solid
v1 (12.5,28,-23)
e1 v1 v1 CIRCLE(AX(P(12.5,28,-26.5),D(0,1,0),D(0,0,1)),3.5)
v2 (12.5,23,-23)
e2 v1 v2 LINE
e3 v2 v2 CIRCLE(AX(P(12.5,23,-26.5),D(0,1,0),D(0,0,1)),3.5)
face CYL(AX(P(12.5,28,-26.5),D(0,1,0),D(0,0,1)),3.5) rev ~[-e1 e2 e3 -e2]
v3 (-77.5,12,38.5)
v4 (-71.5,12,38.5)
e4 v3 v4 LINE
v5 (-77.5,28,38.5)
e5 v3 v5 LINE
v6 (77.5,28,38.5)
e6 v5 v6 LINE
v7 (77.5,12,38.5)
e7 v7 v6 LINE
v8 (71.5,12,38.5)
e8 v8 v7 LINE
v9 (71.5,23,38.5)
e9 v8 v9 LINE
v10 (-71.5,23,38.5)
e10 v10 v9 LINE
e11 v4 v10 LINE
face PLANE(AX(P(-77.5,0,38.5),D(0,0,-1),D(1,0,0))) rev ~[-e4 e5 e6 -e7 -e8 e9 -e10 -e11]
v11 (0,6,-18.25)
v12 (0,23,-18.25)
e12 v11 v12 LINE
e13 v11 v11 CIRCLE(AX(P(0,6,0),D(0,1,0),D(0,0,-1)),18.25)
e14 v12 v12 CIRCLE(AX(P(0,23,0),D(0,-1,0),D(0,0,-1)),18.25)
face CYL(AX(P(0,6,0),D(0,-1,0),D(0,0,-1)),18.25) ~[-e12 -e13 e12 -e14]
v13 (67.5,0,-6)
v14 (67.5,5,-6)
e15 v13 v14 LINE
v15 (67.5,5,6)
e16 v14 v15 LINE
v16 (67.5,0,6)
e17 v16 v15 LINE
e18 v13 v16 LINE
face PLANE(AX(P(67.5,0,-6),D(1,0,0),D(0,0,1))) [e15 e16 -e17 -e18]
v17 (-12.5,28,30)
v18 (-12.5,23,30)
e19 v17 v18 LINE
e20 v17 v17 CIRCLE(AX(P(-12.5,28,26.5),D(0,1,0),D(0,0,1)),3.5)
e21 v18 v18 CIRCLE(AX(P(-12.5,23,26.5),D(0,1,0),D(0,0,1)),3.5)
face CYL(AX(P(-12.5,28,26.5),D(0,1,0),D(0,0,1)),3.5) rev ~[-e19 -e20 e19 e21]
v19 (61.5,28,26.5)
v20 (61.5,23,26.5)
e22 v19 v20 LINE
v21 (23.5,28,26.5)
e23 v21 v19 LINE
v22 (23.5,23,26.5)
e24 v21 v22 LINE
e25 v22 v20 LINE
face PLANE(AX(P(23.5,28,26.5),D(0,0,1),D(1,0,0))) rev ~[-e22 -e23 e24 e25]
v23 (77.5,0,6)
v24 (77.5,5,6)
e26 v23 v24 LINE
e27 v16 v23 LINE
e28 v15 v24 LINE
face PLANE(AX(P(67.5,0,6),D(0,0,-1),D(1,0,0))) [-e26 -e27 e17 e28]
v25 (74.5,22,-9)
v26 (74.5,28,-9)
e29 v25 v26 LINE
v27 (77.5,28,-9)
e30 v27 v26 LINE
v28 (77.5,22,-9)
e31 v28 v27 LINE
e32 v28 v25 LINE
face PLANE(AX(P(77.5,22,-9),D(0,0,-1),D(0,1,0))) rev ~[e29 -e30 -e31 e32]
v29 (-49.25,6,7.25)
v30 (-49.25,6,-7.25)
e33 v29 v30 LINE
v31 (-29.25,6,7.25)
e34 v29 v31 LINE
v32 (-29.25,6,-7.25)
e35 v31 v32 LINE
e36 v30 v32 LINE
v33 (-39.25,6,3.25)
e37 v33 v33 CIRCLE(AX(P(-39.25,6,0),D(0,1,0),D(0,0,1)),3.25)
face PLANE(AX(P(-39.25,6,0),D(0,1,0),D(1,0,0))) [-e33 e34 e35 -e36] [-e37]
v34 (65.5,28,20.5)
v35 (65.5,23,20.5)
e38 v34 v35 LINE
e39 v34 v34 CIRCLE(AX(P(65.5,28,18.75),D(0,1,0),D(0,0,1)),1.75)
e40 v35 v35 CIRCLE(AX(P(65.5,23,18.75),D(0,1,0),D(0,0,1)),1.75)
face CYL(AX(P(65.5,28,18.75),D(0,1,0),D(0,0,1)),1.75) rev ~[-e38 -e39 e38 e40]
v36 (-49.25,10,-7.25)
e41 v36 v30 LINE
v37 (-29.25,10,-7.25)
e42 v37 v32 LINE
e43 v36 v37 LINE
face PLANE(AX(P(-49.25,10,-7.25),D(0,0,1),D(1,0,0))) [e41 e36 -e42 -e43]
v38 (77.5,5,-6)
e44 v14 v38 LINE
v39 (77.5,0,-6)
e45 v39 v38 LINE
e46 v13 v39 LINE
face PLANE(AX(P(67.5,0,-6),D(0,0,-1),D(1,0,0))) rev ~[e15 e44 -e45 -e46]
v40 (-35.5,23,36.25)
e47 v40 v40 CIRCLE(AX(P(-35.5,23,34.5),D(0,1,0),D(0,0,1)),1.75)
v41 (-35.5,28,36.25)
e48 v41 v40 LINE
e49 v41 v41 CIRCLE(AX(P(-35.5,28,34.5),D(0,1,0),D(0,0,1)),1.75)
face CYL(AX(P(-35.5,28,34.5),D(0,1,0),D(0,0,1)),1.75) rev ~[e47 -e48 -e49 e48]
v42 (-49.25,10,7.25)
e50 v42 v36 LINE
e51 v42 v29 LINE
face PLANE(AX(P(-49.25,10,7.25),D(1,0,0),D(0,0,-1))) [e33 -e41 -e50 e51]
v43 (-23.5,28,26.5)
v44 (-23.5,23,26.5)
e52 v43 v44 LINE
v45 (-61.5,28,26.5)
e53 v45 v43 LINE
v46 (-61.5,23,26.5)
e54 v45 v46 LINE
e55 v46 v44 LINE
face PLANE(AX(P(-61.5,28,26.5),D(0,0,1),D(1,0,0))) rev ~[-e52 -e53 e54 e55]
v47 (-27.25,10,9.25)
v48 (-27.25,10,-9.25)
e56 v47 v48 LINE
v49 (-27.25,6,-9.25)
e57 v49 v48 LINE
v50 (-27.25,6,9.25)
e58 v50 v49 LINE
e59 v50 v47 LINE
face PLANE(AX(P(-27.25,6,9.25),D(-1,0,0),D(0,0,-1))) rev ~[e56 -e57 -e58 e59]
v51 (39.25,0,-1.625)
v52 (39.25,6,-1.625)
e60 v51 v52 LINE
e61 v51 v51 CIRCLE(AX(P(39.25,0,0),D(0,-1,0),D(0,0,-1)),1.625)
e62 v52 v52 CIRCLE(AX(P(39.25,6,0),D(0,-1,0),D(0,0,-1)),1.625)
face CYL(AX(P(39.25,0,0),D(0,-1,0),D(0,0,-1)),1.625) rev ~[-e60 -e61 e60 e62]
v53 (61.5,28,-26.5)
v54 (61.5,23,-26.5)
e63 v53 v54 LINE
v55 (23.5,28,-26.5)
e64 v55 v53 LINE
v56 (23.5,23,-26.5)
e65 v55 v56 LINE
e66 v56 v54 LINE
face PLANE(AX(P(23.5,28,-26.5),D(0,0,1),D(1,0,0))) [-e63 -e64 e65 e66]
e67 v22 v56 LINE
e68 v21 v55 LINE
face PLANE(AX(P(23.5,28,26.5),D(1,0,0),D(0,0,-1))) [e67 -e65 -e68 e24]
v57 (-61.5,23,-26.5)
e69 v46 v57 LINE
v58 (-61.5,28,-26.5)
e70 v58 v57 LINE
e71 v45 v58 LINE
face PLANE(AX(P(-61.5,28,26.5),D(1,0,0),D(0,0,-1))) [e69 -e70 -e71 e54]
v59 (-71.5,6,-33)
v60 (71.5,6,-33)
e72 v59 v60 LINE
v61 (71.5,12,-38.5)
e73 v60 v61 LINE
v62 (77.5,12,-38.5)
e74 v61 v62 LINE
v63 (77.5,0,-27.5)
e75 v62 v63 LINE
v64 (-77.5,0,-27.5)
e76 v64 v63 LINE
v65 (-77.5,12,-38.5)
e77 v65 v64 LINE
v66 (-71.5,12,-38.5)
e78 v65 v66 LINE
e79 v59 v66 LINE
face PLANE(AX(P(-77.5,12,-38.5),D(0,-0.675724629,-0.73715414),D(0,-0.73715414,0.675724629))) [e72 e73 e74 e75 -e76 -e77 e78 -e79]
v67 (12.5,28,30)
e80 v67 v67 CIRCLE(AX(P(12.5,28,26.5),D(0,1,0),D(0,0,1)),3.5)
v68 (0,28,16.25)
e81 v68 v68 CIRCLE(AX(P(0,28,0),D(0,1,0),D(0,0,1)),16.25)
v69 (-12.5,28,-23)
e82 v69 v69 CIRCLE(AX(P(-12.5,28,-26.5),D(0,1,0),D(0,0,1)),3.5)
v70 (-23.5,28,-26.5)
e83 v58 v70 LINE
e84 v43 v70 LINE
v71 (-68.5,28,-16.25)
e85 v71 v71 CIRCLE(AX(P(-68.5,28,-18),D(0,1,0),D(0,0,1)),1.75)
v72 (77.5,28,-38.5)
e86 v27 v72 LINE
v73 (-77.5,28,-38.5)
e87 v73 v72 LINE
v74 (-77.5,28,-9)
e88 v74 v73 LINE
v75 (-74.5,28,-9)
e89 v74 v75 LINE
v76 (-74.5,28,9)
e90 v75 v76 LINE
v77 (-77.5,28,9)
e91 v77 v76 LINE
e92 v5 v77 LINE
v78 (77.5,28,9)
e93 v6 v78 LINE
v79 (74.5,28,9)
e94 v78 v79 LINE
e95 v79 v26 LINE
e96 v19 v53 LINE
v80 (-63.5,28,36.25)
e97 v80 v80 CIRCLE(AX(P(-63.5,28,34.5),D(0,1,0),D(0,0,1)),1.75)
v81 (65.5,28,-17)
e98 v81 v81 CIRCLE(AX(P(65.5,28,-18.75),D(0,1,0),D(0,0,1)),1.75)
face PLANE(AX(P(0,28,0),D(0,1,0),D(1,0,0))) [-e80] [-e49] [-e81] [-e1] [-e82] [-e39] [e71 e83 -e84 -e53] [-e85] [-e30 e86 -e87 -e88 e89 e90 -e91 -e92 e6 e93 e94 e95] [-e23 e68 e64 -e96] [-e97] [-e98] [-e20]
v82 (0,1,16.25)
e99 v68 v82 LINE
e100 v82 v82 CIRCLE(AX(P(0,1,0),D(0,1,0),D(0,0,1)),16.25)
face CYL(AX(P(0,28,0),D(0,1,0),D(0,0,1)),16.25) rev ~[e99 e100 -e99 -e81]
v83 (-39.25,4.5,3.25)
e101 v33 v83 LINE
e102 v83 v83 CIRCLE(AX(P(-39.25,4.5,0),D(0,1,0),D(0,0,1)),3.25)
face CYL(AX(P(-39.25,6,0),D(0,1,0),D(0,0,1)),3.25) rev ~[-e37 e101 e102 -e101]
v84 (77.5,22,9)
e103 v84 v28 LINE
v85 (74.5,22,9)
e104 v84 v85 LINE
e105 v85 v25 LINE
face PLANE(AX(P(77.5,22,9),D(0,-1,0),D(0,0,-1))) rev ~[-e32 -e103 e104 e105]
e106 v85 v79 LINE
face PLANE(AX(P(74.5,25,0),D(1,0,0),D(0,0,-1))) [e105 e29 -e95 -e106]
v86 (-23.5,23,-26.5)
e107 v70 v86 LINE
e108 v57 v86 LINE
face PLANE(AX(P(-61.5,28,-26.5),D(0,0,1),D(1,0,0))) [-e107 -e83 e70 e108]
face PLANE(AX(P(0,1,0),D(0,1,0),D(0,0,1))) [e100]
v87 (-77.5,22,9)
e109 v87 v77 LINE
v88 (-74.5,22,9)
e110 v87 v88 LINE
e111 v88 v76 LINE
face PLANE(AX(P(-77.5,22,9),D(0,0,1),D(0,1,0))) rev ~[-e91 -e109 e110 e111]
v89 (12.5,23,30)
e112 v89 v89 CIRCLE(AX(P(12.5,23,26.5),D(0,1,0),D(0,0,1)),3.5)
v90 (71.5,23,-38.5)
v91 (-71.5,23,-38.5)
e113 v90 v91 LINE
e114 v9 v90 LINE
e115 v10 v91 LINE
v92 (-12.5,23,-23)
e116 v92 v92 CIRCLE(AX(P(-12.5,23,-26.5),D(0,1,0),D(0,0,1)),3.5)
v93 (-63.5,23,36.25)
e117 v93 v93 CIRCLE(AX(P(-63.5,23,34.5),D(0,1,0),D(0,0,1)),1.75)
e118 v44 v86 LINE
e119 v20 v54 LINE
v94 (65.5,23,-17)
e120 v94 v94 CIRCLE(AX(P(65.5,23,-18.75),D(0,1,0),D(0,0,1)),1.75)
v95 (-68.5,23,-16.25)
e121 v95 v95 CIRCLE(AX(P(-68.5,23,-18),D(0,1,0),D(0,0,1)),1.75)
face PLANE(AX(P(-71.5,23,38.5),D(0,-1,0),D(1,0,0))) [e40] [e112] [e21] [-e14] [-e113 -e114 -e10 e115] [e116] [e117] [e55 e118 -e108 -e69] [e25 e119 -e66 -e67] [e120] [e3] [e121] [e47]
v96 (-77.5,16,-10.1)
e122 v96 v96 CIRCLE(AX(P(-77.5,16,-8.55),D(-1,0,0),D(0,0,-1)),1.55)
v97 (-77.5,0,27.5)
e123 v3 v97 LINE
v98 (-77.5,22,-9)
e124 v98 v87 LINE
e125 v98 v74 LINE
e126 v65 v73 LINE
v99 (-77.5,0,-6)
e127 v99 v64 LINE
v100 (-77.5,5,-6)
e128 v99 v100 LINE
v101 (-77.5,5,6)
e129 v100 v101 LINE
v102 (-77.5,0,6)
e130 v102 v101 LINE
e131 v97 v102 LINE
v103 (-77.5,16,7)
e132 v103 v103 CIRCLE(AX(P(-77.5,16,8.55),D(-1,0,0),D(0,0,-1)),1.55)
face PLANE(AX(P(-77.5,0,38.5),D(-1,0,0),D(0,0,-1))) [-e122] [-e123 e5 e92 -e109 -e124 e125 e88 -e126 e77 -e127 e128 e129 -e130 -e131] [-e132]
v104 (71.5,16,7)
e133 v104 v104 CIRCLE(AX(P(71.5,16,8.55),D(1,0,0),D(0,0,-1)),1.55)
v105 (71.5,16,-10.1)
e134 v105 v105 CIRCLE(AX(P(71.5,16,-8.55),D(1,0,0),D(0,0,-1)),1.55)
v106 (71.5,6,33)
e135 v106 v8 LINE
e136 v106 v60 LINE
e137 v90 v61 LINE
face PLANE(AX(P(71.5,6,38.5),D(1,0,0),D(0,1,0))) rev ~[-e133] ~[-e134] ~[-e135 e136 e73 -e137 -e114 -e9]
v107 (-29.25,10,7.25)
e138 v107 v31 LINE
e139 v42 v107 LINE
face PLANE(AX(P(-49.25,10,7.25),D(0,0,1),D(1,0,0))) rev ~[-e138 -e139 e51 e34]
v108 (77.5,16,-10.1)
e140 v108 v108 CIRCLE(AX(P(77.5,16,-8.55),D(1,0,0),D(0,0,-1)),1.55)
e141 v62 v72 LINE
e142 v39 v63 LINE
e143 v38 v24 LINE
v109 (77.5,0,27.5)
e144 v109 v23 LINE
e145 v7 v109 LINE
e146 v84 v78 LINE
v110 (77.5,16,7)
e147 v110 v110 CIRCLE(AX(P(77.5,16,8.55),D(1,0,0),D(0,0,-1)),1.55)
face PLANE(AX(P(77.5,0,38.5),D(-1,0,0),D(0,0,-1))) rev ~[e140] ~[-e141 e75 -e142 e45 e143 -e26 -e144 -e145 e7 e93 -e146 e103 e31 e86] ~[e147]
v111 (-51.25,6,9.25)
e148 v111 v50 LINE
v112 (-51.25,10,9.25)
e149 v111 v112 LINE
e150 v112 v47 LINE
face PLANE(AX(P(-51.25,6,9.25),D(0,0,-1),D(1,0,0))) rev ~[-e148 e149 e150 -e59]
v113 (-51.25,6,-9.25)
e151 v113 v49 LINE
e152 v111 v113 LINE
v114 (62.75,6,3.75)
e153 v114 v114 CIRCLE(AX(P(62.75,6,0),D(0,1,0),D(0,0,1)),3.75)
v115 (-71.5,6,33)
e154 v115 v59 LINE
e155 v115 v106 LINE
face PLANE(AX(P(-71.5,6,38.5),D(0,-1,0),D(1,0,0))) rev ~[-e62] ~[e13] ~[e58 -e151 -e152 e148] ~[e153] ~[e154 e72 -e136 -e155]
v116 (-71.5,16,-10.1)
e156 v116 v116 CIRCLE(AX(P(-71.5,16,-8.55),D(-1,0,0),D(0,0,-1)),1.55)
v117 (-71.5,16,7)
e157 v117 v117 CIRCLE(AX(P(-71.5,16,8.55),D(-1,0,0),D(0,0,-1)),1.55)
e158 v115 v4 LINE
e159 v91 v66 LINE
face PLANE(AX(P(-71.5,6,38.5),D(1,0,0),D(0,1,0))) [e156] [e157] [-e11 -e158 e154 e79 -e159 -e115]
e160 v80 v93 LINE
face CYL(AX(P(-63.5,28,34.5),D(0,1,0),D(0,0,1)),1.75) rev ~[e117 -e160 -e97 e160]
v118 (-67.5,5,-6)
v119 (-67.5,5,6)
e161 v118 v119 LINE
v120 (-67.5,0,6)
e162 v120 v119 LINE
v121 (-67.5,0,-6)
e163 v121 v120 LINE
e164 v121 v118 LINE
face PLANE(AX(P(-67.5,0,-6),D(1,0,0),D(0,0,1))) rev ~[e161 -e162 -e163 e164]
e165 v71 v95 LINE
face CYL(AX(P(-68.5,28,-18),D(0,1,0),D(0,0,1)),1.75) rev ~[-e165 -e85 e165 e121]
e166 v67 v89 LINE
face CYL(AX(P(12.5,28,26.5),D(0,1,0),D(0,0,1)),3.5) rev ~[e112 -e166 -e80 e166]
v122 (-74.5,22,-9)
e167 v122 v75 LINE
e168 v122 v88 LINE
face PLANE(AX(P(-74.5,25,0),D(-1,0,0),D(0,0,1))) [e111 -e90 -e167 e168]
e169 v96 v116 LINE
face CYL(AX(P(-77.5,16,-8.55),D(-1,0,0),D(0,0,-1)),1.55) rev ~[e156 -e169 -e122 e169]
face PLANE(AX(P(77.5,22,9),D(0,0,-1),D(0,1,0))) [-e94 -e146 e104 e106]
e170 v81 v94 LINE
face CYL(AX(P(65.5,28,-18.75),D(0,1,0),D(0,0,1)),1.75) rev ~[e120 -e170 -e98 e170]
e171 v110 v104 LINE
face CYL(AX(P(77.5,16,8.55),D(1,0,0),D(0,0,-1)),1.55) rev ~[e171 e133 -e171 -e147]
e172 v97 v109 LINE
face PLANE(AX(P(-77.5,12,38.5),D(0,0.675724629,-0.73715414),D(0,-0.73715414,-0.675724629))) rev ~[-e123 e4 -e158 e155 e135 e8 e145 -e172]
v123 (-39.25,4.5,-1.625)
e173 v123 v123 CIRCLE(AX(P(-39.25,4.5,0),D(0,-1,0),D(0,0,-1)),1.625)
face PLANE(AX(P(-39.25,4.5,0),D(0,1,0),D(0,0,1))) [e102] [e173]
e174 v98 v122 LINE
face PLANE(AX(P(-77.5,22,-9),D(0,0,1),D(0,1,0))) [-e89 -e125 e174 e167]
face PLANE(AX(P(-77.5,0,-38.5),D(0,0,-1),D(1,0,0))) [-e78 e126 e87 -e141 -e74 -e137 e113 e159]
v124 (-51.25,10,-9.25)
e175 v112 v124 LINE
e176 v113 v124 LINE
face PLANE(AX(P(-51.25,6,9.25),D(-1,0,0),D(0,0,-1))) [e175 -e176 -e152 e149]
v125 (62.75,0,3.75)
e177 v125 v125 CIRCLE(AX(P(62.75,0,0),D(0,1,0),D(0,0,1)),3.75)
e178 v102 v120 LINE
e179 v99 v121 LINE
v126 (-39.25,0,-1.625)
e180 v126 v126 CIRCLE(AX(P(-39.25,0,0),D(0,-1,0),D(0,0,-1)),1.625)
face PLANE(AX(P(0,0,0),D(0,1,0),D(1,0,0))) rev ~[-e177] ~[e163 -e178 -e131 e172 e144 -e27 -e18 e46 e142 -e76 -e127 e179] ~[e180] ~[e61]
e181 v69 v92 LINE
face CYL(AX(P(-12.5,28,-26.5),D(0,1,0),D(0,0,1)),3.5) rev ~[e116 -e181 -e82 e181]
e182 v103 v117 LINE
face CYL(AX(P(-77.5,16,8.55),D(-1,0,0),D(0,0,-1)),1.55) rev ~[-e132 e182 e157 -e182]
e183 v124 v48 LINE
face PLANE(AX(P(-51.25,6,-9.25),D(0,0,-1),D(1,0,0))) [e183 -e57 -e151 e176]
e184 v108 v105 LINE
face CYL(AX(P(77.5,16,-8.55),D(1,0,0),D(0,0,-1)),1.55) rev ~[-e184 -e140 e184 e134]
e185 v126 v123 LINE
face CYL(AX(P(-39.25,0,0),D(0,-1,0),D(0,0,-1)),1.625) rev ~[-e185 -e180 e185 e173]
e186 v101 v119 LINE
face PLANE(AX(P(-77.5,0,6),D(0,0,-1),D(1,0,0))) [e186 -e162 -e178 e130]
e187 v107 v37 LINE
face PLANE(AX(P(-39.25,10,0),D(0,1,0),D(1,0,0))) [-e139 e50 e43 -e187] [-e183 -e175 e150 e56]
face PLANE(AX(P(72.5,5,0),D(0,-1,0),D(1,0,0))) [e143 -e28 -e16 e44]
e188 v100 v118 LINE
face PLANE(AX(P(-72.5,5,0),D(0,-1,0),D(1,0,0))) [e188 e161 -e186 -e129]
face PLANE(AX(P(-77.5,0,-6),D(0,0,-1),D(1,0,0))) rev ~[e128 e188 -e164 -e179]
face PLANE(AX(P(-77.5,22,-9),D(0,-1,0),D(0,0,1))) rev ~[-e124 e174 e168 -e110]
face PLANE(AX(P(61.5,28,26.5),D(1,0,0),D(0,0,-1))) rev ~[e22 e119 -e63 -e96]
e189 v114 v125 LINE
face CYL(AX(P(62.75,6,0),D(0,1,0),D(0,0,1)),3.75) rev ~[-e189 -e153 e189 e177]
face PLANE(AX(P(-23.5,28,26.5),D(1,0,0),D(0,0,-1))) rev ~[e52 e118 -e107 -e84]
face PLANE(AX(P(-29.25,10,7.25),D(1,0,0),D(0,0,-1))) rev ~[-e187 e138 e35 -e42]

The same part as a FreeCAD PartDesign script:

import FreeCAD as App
import Part
import Sketcher
Q = App.Units.Quantity


def add_polygon(sketch, points):
    """Adds a closed chain of lines whose ends are joined by coincident constraints."""
    first, n = sketch.GeometryCount, len(points)
    for a, b in zip(points, points[1:] + points[:1]):
        sketch.addGeometry(Part.LineSegment(App.Vector(*a, 0), App.Vector(*b, 0)), False)
    for i in range(n):
        sketch.addConstraint(Sketcher.Constraint("Coincident", first + i, 2, first + (i + 1) % n, 1))

doc = App.newDocument("Part")
body = doc.addObject("PartDesign::Body", "Body")

sketch1 = body.newObject("Sketcher::SketchObject", "Sketch")
sketch1.AttachmentSupport = (doc.getObject("XZ_Plane"), [""])
sketch1.MapMode = "FlatFace"
add_polygon(sketch1, [(-77.5, -38.5), (-77.5, 38.5), (77.5, 38.5), (77.5, -38.5)])
sketch1.addConstraint([
    Sketcher.Constraint("Vertical", 0),
    Sketcher.Constraint("Horizontal", 1),
    Sketcher.Constraint("Vertical", 2),
    Sketcher.Constraint("Horizontal", 3),
    Sketcher.Constraint("Symmetric", 0, 2, 2, 2, -1, 1),
    Sketcher.Constraint("DistanceX", 1, 1, 1, 2, Q("155 mm")),
    Sketcher.Constraint("DistanceY", 0, 1, 0, 2, Q("77 mm")),
])
pad1 = body.newObject("PartDesign::Pad", "Pad")
pad1.Profile = sketch1
pad1.Length = 28
pad1.Reversed = True

sketch2 = body.newObject("Sketcher::SketchObject", "Sketch001")
sketch2.AttachmentSupport = (doc.getObject("XY_Plane"), [""])
sketch2.MapMode = "FlatFace"
sketch2.AttachmentOffset = App.Placement(App.Vector(0, 0, 38.5), App.Rotation())
add_polygon(sketch2, [(-71.5, 23), (-71.5, 6), (71.5, 6), (71.5, 23)])
sketch2.addConstraint([
    Sketcher.Constraint("Vertical", 0),
    Sketcher.Constraint("Horizontal", 1),
    Sketcher.Constraint("Vertical", 2),
    Sketcher.Constraint("Horizontal", 3),
    Sketcher.Constraint("DistanceX", 1, 1, 1, 2, Q("143 mm")),
    Sketcher.Constraint("DistanceY", 0, 2, 0, 1, Q("17 mm")),
    Sketcher.Constraint("DistanceY", -1, 1, 0, 2, Q("6 mm")),
    Sketcher.Constraint("DistanceX", 0, 2, -1, 1, Q("71.5 mm")),
])
pocket1 = body.newObject("PartDesign::Pocket", "Pocket")
pocket1.Profile = sketch2
pocket1.Type = "ThroughAll"

sketch3 = body.newObject("Sketcher::SketchObject", "Sketch002")
sketch3.AttachmentSupport = (doc.getObject("XZ_Plane"), [""])
sketch3.MapMode = "FlatFace"
sketch3.AttachmentOffset = App.Placement(App.Vector(0, 0, -6), App.Rotation())
sketch3.addGeometry(Part.Circle(App.Vector(0, 0, 0), App.Vector(0, 0, 1), 18.25), False)
sketch3.addConstraint([
    Sketcher.Constraint("Coincident", 0, 3, -1, 1),
    Sketcher.Constraint("Diameter", 0, Q("36.5 mm")),
])
pad2 = body.newObject("PartDesign::Pad", "Pad001")
pad2.Profile = sketch3
pad2.Type = "UpToFirst"
pad2.Reversed = True

sketch4 = body.newObject("Sketcher::SketchObject", "Sketch003")
sketch4.AttachmentSupport = (doc.getObject("XZ_Plane"), [""])
sketch4.MapMode = "FlatFace"
sketch4.AttachmentOffset = App.Placement(App.Vector(0, 0, -28), App.Rotation())
sketch4.addGeometry(Part.Circle(App.Vector(0, 0, 0), App.Vector(0, 0, 1), 16.25), False)
sketch4.addConstraint([
    Sketcher.Constraint("Coincident", 0, 3, -1, 1),
    Sketcher.Constraint("Diameter", 0, Q("32.5 mm")),
])
pocket2 = body.newObject("PartDesign::Pocket", "Pocket001")
pocket2.Profile = sketch4
pocket2.Length = 27
pocket2.Reversed = True

sketch5 = body.newObject("Sketcher::SketchObject", "Sketch004")
sketch5.AttachmentSupport = (doc.getObject("XZ_Plane"), [""])
sketch5.MapMode = "FlatFace"
sketch5.AttachmentOffset = App.Placement(App.Vector(0, 0, -28), App.Rotation())
sketch5.addGeometry(Part.Circle(App.Vector(-12.5, -26.5, 0), App.Vector(0, 0, 1), 3.5), False)
sketch5.addConstraint([
    Sketcher.Constraint("Diameter", 0, Q("7 mm")),
    Sketcher.Constraint("DistanceX", 0, 3, -1, 1, Q("12.5 mm")),
    Sketcher.Constraint("DistanceY", 0, 3, -1, 1, Q("26.5 mm")),
])
pocket3 = body.newObject("PartDesign::Pocket", "Pocket002")
pocket3.Profile = sketch5
pocket3.Type = "UpToFirst"
pocket3.Reversed = True

sketch6 = body.newObject("Sketcher::SketchObject", "Sketch005")
sketch6.AttachmentSupport = (doc.getObject("XZ_Plane"), [""])
sketch6.MapMode = "FlatFace"
sketch6.AttachmentOffset = App.Placement(App.Vector(0, 0, -28), App.Rotation())
sketch6.addGeometry(Part.Circle(App.Vector(12.5, -26.5, 0), App.Vector(0, 0, 1), 3.5), False)
sketch6.addConstraint([
    Sketcher.Constraint("Diameter", 0, Q("7 mm")),
    Sketcher.Constraint("DistanceX", -1, 1, 0, 3, Q("12.5 mm")),
    Sketcher.Constraint("DistanceY", 0, 3, -1, 1, Q("26.5 mm")),
])
pocket4 = body.newObject("PartDesign::Pocket", "Pocket003")
pocket4.Profile = sketch6
pocket4.Type = "UpToFirst"
pocket4.Reversed = True

sketch7 = body.newObject("Sketcher::SketchObject", "Sketch006")
sketch7.AttachmentSupport = (doc.getObject("XZ_Plane"), [""])
sketch7.MapMode = "FlatFace"
sketch7.AttachmentOffset = App.Placement(App.Vector(0, 0, -28), App.Rotation())
sketch7.addGeometry(Part.Circle(App.Vector(12.5, 26.5, 0), App.Vector(0, 0, 1), 3.5), False)
sketch7.addConstraint([
    Sketcher.Constraint("Diameter", 0, Q("7 mm")),
    Sketcher.Constraint("DistanceX", -1, 1, 0, 3, Q("12.5 mm")),
    Sketcher.Constraint("DistanceY", -1, 1, 0, 3, Q("26.5 mm")),
])
pocket5 = body.newObject("PartDesign::Pocket", "Pocket004")
pocket5.Profile = sketch7
pocket5.Type = "UpToFirst"
pocket5.Reversed = True

sketch8 = body.newObject("Sketcher::SketchObject", "Sketch007")
sketch8.AttachmentSupport = (doc.getObject("XZ_Plane"), [""])
sketch8.MapMode = "FlatFace"
sketch8.AttachmentOffset = App.Placement(App.Vector(0, 0, -28), App.Rotation())
sketch8.addGeometry(Part.Circle(App.Vector(-12.5, 26.5, 0), App.Vector(0, 0, 1), 3.5), False)
sketch8.addConstraint([
    Sketcher.Constraint("Diameter", 0, Q("7 mm")),
    Sketcher.Constraint("DistanceX", 0, 3, -1, 1, Q("12.5 mm")),
    Sketcher.Constraint("DistanceY", -1, 1, 0, 3, Q("26.5 mm")),
])
pocket6 = body.newObject("PartDesign::Pocket", "Pocket005")
pocket6.Profile = sketch8
pocket6.Type = "UpToFirst"
pocket6.Reversed = True

sketch9 = body.newObject("Sketcher::SketchObject", "Sketch008")
sketch9.AttachmentSupport = (doc.getObject("XZ_Plane"), [""])
sketch9.MapMode = "FlatFace"
sketch9.AttachmentOffset = App.Placement(App.Vector(0, 0, -28), App.Rotation())
add_polygon(sketch9, [(-61.5, -26.5), (-61.5, 26.5), (-23.5, 26.5), (-23.5, -26.5)])
sketch9.addConstraint([
    Sketcher.Constraint("Vertical", 0),
    Sketcher.Constraint("Horizontal", 1),
    Sketcher.Constraint("Vertical", 2),
    Sketcher.Constraint("Horizontal", 3),
    Sketcher.Constraint("DistanceX", 1, 1, 1, 2, Q("38 mm")),
    Sketcher.Constraint("DistanceY", 0, 1, 0, 2, Q("53 mm")),
    Sketcher.Constraint("DistanceX", 0, 2, -1, 1, Q("61.5 mm")),
    Sketcher.Constraint("DistanceY", -1, 1, 0, 2, Q("26.5 mm")),
])
pocket7 = body.newObject("PartDesign::Pocket", "Pocket006")
pocket7.Profile = sketch9
pocket7.Type = "UpToFirst"
pocket7.Reversed = True

sketch10 = body.newObject("Sketcher::SketchObject", "Sketch009")
sketch10.AttachmentSupport = (doc.getObject("XZ_Plane"), [""])
sketch10.MapMode = "FlatFace"
sketch10.AttachmentOffset = App.Placement(App.Vector(0, 0, -28), App.Rotation())
add_polygon(sketch10, [(23.5, -26.5), (23.5, 26.5), (61.5, 26.5), (61.5, -26.5)])
sketch10.addConstraint([
    Sketcher.Constraint("Vertical", 0),
    Sketcher.Constraint("Horizontal", 1),
    Sketcher.Constraint("Vertical", 2),
    Sketcher.Constraint("Horizontal", 3),
    Sketcher.Constraint("DistanceX", 1, 1, 1, 2, Q("38 mm")),
    Sketcher.Constraint("DistanceY", 0, 1, 0, 2, Q("53 mm")),
    Sketcher.Constraint("DistanceX", -1, 1, 0, 2, Q("23.5 mm")),
    Sketcher.Constraint("DistanceY", -1, 1, 0, 2, Q("26.5 mm")),
])
pocket8 = body.newObject("PartDesign::Pocket", "Pocket007")
pocket8.Profile = sketch10
pocket8.Type = "UpToFirst"
pocket8.Reversed = True

sketch11 = body.newObject("Sketcher::SketchObject", "Sketch010")
sketch11.AttachmentSupport = (doc.getObject("XZ_Plane"), [""])
sketch11.MapMode = "FlatFace"
add_polygon(sketch11, [(-77.5, 6), (-77.5, -6), (-67.5, -6), (-67.5, 6)])
add_polygon(sketch11, [(67.5, 6), (67.5, -6), (77.5, -6), (77.5, 6)])
sketch11.addConstraint([
    Sketcher.Constraint("Vertical", 0),
    Sketcher.Constraint("Horizontal", 1),
    Sketcher.Constraint("Vertical", 2),
    Sketcher.Constraint("Horizontal", 3),
    Sketcher.Constraint("Vertical", 4),
    Sketcher.Constraint("Horizontal", 5),
    Sketcher.Constraint("Vertical", 6),
    Sketcher.Constraint("Horizontal", 7),
    Sketcher.Constraint("Symmetric", 2, 2, 4, 2, -1, 1),
    Sketcher.Constraint("Symmetric", 0, 2, 6, 2, -1, 1),
    Sketcher.Constraint("Horizontal", 1, 2, 4, 2),
    Sketcher.Constraint("DistanceX", 1, 1, 1, 2, Q("10 mm")),
    Sketcher.Constraint("DistanceY", 0, 2, 0, 1, Q("12 mm")),
    Sketcher.Constraint("DistanceX", 1, 2, 4, 2, Q("135 mm")),
])
pocket9 = body.newObject("PartDesign::Pocket", "Pocket008")
pocket9.Profile = sketch11
pocket9.Length = 5

sketch12 = body.newObject("Sketcher::SketchObject", "Sketch011")
sketch12.AttachmentSupport = (doc.getObject("YZ_Plane"), [""])
sketch12.MapMode = "FlatFace"
sketch12.AttachmentOffset = App.Placement(App.Vector(0, 0, -77.5), App.Rotation())
add_polygon(sketch12, [(12, -38.5), (0, -38.5), (0, -27.5)])
add_polygon(sketch12, [(12, 38.5), (0, 27.5), (0, 38.5)])
sketch12.addConstraint([
    Sketcher.Constraint("Horizontal", 0),
    Sketcher.Constraint("Vertical", 1),
    Sketcher.Constraint("Vertical", 4),
    Sketcher.Constraint("Horizontal", 5),
    Sketcher.Constraint("Symmetric", 1, 2, 3, 2, -1, 1),
    Sketcher.Constraint("Symmetric", 0, 2, 4, 2, -1),
    Sketcher.Constraint("Vertical", 2, 2, 5, 2),
    Sketcher.Constraint("DistanceX", 0, 2, 0, 1, Q("12 mm")),
    Sketcher.Constraint("DistanceY", 1, 1, 1, 2, Q("11 mm")),
    Sketcher.Constraint("DistanceY", 1, 2, 3, 2, Q("55 mm")),
])
pocket10 = body.newObject("PartDesign::Pocket", "Pocket009")
pocket10.Profile = sketch12
pocket10.Type = "ThroughAll"
pocket10.Reversed = True

sketch13 = body.newObject("Sketcher::SketchObject", "Sketch012")
sketch13.AttachmentSupport = (doc.getObject("XZ_Plane"), [""])
sketch13.MapMode = "FlatFace"
sketch13.addGeometry(Part.Circle(App.Vector(39.25, 0, 0), App.Vector(0, 0, 1), 1.625), False)
sketch13.addConstraint([
    Sketcher.Constraint("PointOnObject", 0, 3, -1),
    Sketcher.Constraint("Diameter", 0, Q("3.25 mm")),
    Sketcher.Constraint("DistanceX", -1, 1, 0, 3, Q("39.25 mm")),
])
pocket11 = body.newObject("PartDesign::Pocket", "Pocket010")
pocket11.Profile = sketch13
pocket11.Type = "UpToFirst"

sketch14 = body.newObject("Sketcher::SketchObject", "Sketch013")
sketch14.AttachmentSupport = (doc.getObject("XZ_Plane"), [""])
sketch14.MapMode = "FlatFace"
sketch14.addGeometry(Part.Circle(App.Vector(-39.25, 0, 0), App.Vector(0, 0, 1), 1.625), False)
sketch14.addConstraint([
    Sketcher.Constraint("PointOnObject", 0, 3, -1),
    Sketcher.Constraint("Diameter", 0, Q("3.25 mm")),
    Sketcher.Constraint("DistanceX", 0, 3, -1, 1, Q("39.25 mm")),
])
pocket12 = body.newObject("PartDesign::Pocket", "Pocket011")
pocket12.Profile = sketch14
pocket12.Type = "UpToFirst"

sketch15 = body.newObject("Sketcher::SketchObject", "Sketch014")
sketch15.AttachmentSupport = (doc.getObject("XZ_Plane"), [""])
sketch15.MapMode = "FlatFace"
sketch15.AttachmentOffset = App.Placement(App.Vector(0, 0, -6), App.Rotation())
add_polygon(sketch15, [(-51.25, -9.25), (-51.25, 9.25), (-27.25, 9.25), (-27.25, -9.25)])
sketch15.addConstraint([
    Sketcher.Constraint("Vertical", 0),
    Sketcher.Constraint("Horizontal", 1),
    Sketcher.Constraint("Vertical", 2),
    Sketcher.Constraint("Horizontal", 3),
    Sketcher.Constraint("DistanceX", 1, 1, 1, 2, Q("24 mm")),
    Sketcher.Constraint("DistanceY", 0, 1, 0, 2, Q("18.5 mm")),
    Sketcher.Constraint("DistanceX", 0, 2, -1, 1, Q("51.25 mm")),
    Sketcher.Constraint("DistanceY", -1, 1, 0, 2, Q("9.25 mm")),
])
pad3 = body.newObject("PartDesign::Pad", "Pad002")
pad3.Profile = sketch15
pad3.Length = 4
pad3.Reversed = True

sketch16 = body.newObject("Sketcher::SketchObject", "Sketch015")
sketch16.AttachmentSupport = (doc.getObject("XZ_Plane"), [""])
sketch16.MapMode = "FlatFace"
sketch16.AttachmentOffset = App.Placement(App.Vector(0, 0, -10), App.Rotation())
add_polygon(sketch16, [(-49.25, -7.25), (-49.25, 7.25), (-29.25, 7.25), (-29.25, -7.25)])
sketch16.addConstraint([
    Sketcher.Constraint("Vertical", 0),
    Sketcher.Constraint("Horizontal", 1),
    Sketcher.Constraint("Vertical", 2),
    Sketcher.Constraint("Horizontal", 3),
    Sketcher.Constraint("DistanceX", 1, 1, 1, 2, Q("20 mm")),
    Sketcher.Constraint("DistanceY", 0, 1, 0, 2, Q("14.5 mm")),
    Sketcher.Constraint("DistanceX", 0, 2, -1, 1, Q("49.25 mm")),
    Sketcher.Constraint("DistanceY", -1, 1, 0, 2, Q("7.25 mm")),
])
pocket13 = body.newObject("PartDesign::Pocket", "Pocket012")
pocket13.Profile = sketch16
pocket13.Length = 4
pocket13.Reversed = True

sketch17 = body.newObject("Sketcher::SketchObject", "Sketch016")
sketch17.AttachmentSupport = (doc.getObject("XZ_Plane"), [""])
sketch17.MapMode = "FlatFace"
sketch17.AttachmentOffset = App.Placement(App.Vector(0, 0, -6), App.Rotation())
sketch17.addGeometry(Part.Circle(App.Vector(-39.25, 0, 0), App.Vector(0, 0, 1), 3.25), False)
sketch17.addConstraint([
    Sketcher.Constraint("PointOnObject", 0, 3, -1),
    Sketcher.Constraint("Diameter", 0, Q("6.5 mm")),
    Sketcher.Constraint("DistanceX", 0, 3, -1, 1, Q("39.25 mm")),
])
pocket14 = body.newObject("PartDesign::Pocket", "Pocket013")
pocket14.Profile = sketch17
pocket14.Length = 1.5
pocket14.Reversed = True

sketch18 = body.newObject("Sketcher::SketchObject", "Sketch017")
sketch18.AttachmentSupport = (doc.getObject("YZ_Plane"), [""])
sketch18.MapMode = "FlatFace"
sketch18.AttachmentOffset = App.Placement(App.Vector(0, 0, 77.5), App.Rotation())
sketch18.addGeometry(Part.Circle(App.Vector(16, 8.55, 0), App.Vector(0, 0, 1), 1.55), False)
sketch18.addConstraint([
    Sketcher.Constraint("Diameter", 0, Q("3.1 mm")),
    Sketcher.Constraint("DistanceX", -1, 1, 0, 3, Q("16 mm")),
    Sketcher.Constraint("DistanceY", -1, 1, 0, 3, Q("8.55 mm")),
])
pocket15 = body.newObject("PartDesign::Pocket", "Pocket014")
pocket15.Profile = sketch18
pocket15.Type = "UpToFirst"

sketch19 = body.newObject("Sketcher::SketchObject", "Sketch018")
sketch19.AttachmentSupport = (doc.getObject("YZ_Plane"), [""])
sketch19.MapMode = "FlatFace"
sketch19.AttachmentOffset = App.Placement(App.Vector(0, 0, 77.5), App.Rotation())
sketch19.addGeometry(Part.Circle(App.Vector(16, -8.55, 0), App.Vector(0, 0, 1), 1.55), False)
sketch19.addConstraint([
    Sketcher.Constraint("Diameter", 0, Q("3.1 mm")),
    Sketcher.Constraint("DistanceX", -1, 1, 0, 3, Q("16 mm")),
    Sketcher.Constraint("DistanceY", 0, 3, -1, 1, Q("8.55 mm")),
])
pocket16 = body.newObject("PartDesign::Pocket", "Pocket015")
pocket16.Profile = sketch19
pocket16.Type = "UpToFirst"

sketch20 = body.newObject("Sketcher::SketchObject", "Sketch019")
sketch20.AttachmentSupport = (doc.getObject("YZ_Plane"), [""])
sketch20.MapMode = "FlatFace"
sketch20.AttachmentOffset = App.Placement(App.Vector(0, 0, -77.5), App.Rotation())
sketch20.addGeometry(Part.Circle(App.Vector(16, -8.55, 0), App.Vector(0, 0, 1), 1.55), False)
sketch20.addConstraint([
    Sketcher.Constraint("Diameter", 0, Q("3.1 mm")),
    Sketcher.Constraint("DistanceX", -1, 1, 0, 3, Q("16 mm")),
    Sketcher.Constraint("DistanceY", 0, 3, -1, 1, Q("8.55 mm")),
])
pocket17 = body.newObject("PartDesign::Pocket", "Pocket016")
pocket17.Profile = sketch20
pocket17.Type = "UpToFirst"
pocket17.Reversed = True

sketch21 = body.newObject("Sketcher::SketchObject", "Sketch020")
sketch21.AttachmentSupport = (doc.getObject("YZ_Plane"), [""])
sketch21.MapMode = "FlatFace"
sketch21.AttachmentOffset = App.Placement(App.Vector(0, 0, -77.5), App.Rotation())
sketch21.addGeometry(Part.Circle(App.Vector(16, 8.55, 0), App.Vector(0, 0, 1), 1.55), False)
sketch21.addConstraint([
    Sketcher.Constraint("Diameter", 0, Q("3.1 mm")),
    Sketcher.Constraint("DistanceX", -1, 1, 0, 3, Q("16 mm")),
    Sketcher.Constraint("DistanceY", -1, 1, 0, 3, Q("8.55 mm")),
])
pocket18 = body.newObject("PartDesign::Pocket", "Pocket017")
pocket18.Profile = sketch21
pocket18.Type = "UpToFirst"
pocket18.Reversed = True

sketch22 = body.newObject("Sketcher::SketchObject", "Sketch021")
sketch22.AttachmentSupport = (doc.getObject("YZ_Plane"), [""])
sketch22.MapMode = "FlatFace"
sketch22.AttachmentOffset = App.Placement(App.Vector(0, 0, -77.5), App.Rotation())
add_polygon(sketch22, [(28, -9), (22, -9), (22, 9), (28, 9)])
sketch22.addConstraint([
    Sketcher.Constraint("Horizontal", 0),
    Sketcher.Constraint("Vertical", 1),
    Sketcher.Constraint("Horizontal", 2),
    Sketcher.Constraint("Vertical", 3),
    Sketcher.Constraint("DistanceX", 0, 2, 0, 1, Q("6 mm")),
    Sketcher.Constraint("DistanceY", 1, 1, 1, 2, Q("18 mm")),
    Sketcher.Constraint("DistanceX", -1, 1, 0, 2, Q("22 mm")),
    Sketcher.Constraint("DistanceY", 0, 2, -1, 1, Q("9 mm")),
])
pocket19 = body.newObject("PartDesign::Pocket", "Pocket018")
pocket19.Profile = sketch22
pocket19.Length = 3
pocket19.Reversed = True

sketch23 = body.newObject("Sketcher::SketchObject", "Sketch022")
sketch23.AttachmentSupport = (doc.getObject("YZ_Plane"), [""])
sketch23.MapMode = "FlatFace"
sketch23.AttachmentOffset = App.Placement(App.Vector(0, 0, 77.5), App.Rotation())
add_polygon(sketch23, [(28, 9), (22, 9), (22, -9), (28, -9)])
sketch23.addConstraint([
    Sketcher.Constraint("Horizontal", 0),
    Sketcher.Constraint("Vertical", 1),
    Sketcher.Constraint("Horizontal", 2),
    Sketcher.Constraint("Vertical", 3),
    Sketcher.Constraint("DistanceX", 0, 2, 0, 1, Q("6 mm")),
    Sketcher.Constraint("DistanceY", 1, 2, 1, 1, Q("18 mm")),
    Sketcher.Constraint("DistanceX", -1, 1, 0, 2, Q("22 mm")),
    Sketcher.Constraint("DistanceY", -1, 1, 0, 2, Q("9 mm")),
])
pocket20 = body.newObject("PartDesign::Pocket", "Pocket019")
pocket20.Profile = sketch23
pocket20.Length = 3

sketch24 = body.newObject("Sketcher::SketchObject", "Sketch023")
sketch24.AttachmentSupport = (doc.getObject("XZ_Plane"), [""])
sketch24.MapMode = "FlatFace"
sketch24.AttachmentOffset = App.Placement(App.Vector(0, 0, -6), App.Rotation())
sketch24.addGeometry(Part.Circle(App.Vector(62.75, 0, 0), App.Vector(0, 0, 1), 3.75), False)
sketch24.addConstraint([
    Sketcher.Constraint("PointOnObject", 0, 3, -1),
    Sketcher.Constraint("Diameter", 0, Q("7.5 mm")),
    Sketcher.Constraint("DistanceX", -1, 1, 0, 3, Q("62.75 mm")),
])
pocket21 = body.newObject("PartDesign::Pocket", "Pocket020")
pocket21.Profile = sketch24
pocket21.Type = "ThroughAll"
pocket21.Reversed = True

sketch25 = body.newObject("Sketcher::SketchObject", "Sketch024")
sketch25.AttachmentSupport = (doc.getObject("XZ_Plane"), [""])
sketch25.MapMode = "FlatFace"
sketch25.AttachmentOffset = App.Placement(App.Vector(0, 0, -28), App.Rotation())
sketch25.addGeometry(Part.Circle(App.Vector(-63.5, 34.5, 0), App.Vector(0, 0, 1), 1.75), False)
sketch25.addConstraint([
    Sketcher.Constraint("Diameter", 0, Q("3.5 mm")),
    Sketcher.Constraint("DistanceX", 0, 3, -1, 1, Q("63.5 mm")),
    Sketcher.Constraint("DistanceY", -1, 1, 0, 3, Q("34.5 mm")),
])
pocket22 = body.newObject("PartDesign::Pocket", "Pocket021")
pocket22.Profile = sketch25
pocket22.Type = "UpToFirst"
pocket22.Reversed = True

sketch26 = body.newObject("Sketcher::SketchObject", "Sketch025")
sketch26.AttachmentSupport = (doc.getObject("XZ_Plane"), [""])
sketch26.MapMode = "FlatFace"
sketch26.AttachmentOffset = App.Placement(App.Vector(0, 0, -28), App.Rotation())
sketch26.addGeometry(Part.Circle(App.Vector(-68.5, -18, 0), App.Vector(0, 0, 1), 1.75), False)
sketch26.addConstraint([
    Sketcher.Constraint("Diameter", 0, Q("3.5 mm")),
    Sketcher.Constraint("DistanceY", 0, 3, -1, 1, Q("18 mm")),
    Sketcher.Constraint("DistanceX", 0, 3, -1, 1, Q("68.5 mm")),
])
pocket23 = body.newObject("PartDesign::Pocket", "Pocket022")
pocket23.Profile = sketch26
pocket23.Type = "UpToFirst"
pocket23.Reversed = True

sketch27 = body.newObject("Sketcher::SketchObject", "Sketch026")
sketch27.AttachmentSupport = (doc.getObject("XZ_Plane"), [""])
sketch27.MapMode = "FlatFace"
sketch27.AttachmentOffset = App.Placement(App.Vector(0, 0, -28), App.Rotation())
sketch27.addGeometry(Part.Circle(App.Vector(-35.5, 34.5, 0), App.Vector(0, 0, 1), 1.75), False)
sketch27.addConstraint([
    Sketcher.Constraint("Diameter", 0, Q("3.5 mm")),
    Sketcher.Constraint("DistanceX", 0, 3, -1, 1, Q("35.5 mm")),
    Sketcher.Constraint("DistanceY", -1, 1, 0, 3, Q("34.5 mm")),
])
pocket24 = body.newObject("PartDesign::Pocket", "Pocket023")
pocket24.Profile = sketch27
pocket24.Type = "UpToFirst"
pocket24.Reversed = True

sketch28 = body.newObject("Sketcher::SketchObject", "Sketch027")
sketch28.AttachmentSupport = (doc.getObject("XZ_Plane"), [""])
sketch28.MapMode = "FlatFace"
sketch28.AttachmentOffset = App.Placement(App.Vector(0, 0, -28), App.Rotation())
sketch28.addGeometry(Part.Circle(App.Vector(65.5, 18.75, 0), App.Vector(0, 0, 1), 1.75), False)
sketch28.addConstraint([
    Sketcher.Constraint("Diameter", 0, Q("3.5 mm")),
    Sketcher.Constraint("DistanceX", -1, 1, 0, 3, Q("65.5 mm")),
    Sketcher.Constraint("DistanceY", -1, 1, 0, 3, Q("18.75 mm")),
])
pocket25 = body.newObject("PartDesign::Pocket", "Pocket024")
pocket25.Profile = sketch28
pocket25.Type = "UpToFirst"
pocket25.Reversed = True

sketch29 = body.newObject("Sketcher::SketchObject", "Sketch028")
sketch29.AttachmentSupport = (doc.getObject("XZ_Plane"), [""])
sketch29.MapMode = "FlatFace"
sketch29.AttachmentOffset = App.Placement(App.Vector(0, 0, -28), App.Rotation())
sketch29.addGeometry(Part.Circle(App.Vector(65.5, -18.75, 0), App.Vector(0, 0, 1), 1.75), False)
sketch29.addConstraint([
    Sketcher.Constraint("Diameter", 0, Q("3.5 mm")),
    Sketcher.Constraint("DistanceX", -1, 1, 0, 3, Q("65.5 mm")),
    Sketcher.Constraint("DistanceY", 0, 3, -1, 1, Q("18.75 mm")),
])
pocket26 = body.newObject("PartDesign::Pocket", "Pocket025")
pocket26.Profile = sketch29
pocket26.Type = "UpToFirst"
pocket26.Reversed = True

doc.recompute()
